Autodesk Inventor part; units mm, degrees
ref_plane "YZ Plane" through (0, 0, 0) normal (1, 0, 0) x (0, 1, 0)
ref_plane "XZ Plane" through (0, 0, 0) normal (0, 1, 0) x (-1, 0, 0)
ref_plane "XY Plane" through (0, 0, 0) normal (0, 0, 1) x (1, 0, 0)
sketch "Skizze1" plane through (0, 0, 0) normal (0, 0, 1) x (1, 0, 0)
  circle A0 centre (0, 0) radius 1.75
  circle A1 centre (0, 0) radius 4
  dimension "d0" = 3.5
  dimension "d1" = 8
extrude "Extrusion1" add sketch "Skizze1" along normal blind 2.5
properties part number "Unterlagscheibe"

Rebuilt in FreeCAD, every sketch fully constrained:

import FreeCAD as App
import Part
import Sketcher

V = App.Vector

doc = App.newDocument("Part")
params = doc.addObject("Spreadsheet::Sheet", "Params")
for row, (alias, value) in enumerate([
    ("sketch1_diameter", "8 mm"),
    ("sketch1_diameter2", "3.5 mm"),
    ("pad1_length", "2.5 mm"),
], start=1):
    params.set(f"A{row}", alias)
    params.set(f"B{row}", "=" + value)
    params.setAlias(f"B{row}", alias)

body = doc.addObject("PartDesign::Body", "Body")

sketch1 = body.newObject("Sketcher::SketchObject", "Sketch")
sketch1.AttachmentSupport = (doc.getObject("XY_Plane"), [""])
sketch1.MapMode = "FlatFace"
sketch1.addGeometry(Part.Circle(V(0, 0, 0), V(0, 0, 1), 4), False)
sketch1.addGeometry(Part.Circle(V(0, 0, 0), V(0, 0, 1), 1.75), False)
sketch1.addConstraint(Sketcher.Constraint("Coincident", 0, 3, -1, 1))
sketch1.addConstraint(Sketcher.Constraint("Coincident", 1, 3, -1, 1))
sketch1.addConstraint(Sketcher.Constraint("Diameter", 0, 8.0))
sketch1.addConstraint(Sketcher.Constraint("Diameter", 1, 3.5))
sketch1.setExpression("Constraints[2]", "Params.sketch1_diameter")
sketch1.setExpression("Constraints[3]", "Params.sketch1_diameter2")
pad1 = body.newObject("PartDesign::Pad", "Pad")
pad1.Profile = sketch1
pad1.setExpression("Length", "Params.pad1_length")

doc.recompute()
